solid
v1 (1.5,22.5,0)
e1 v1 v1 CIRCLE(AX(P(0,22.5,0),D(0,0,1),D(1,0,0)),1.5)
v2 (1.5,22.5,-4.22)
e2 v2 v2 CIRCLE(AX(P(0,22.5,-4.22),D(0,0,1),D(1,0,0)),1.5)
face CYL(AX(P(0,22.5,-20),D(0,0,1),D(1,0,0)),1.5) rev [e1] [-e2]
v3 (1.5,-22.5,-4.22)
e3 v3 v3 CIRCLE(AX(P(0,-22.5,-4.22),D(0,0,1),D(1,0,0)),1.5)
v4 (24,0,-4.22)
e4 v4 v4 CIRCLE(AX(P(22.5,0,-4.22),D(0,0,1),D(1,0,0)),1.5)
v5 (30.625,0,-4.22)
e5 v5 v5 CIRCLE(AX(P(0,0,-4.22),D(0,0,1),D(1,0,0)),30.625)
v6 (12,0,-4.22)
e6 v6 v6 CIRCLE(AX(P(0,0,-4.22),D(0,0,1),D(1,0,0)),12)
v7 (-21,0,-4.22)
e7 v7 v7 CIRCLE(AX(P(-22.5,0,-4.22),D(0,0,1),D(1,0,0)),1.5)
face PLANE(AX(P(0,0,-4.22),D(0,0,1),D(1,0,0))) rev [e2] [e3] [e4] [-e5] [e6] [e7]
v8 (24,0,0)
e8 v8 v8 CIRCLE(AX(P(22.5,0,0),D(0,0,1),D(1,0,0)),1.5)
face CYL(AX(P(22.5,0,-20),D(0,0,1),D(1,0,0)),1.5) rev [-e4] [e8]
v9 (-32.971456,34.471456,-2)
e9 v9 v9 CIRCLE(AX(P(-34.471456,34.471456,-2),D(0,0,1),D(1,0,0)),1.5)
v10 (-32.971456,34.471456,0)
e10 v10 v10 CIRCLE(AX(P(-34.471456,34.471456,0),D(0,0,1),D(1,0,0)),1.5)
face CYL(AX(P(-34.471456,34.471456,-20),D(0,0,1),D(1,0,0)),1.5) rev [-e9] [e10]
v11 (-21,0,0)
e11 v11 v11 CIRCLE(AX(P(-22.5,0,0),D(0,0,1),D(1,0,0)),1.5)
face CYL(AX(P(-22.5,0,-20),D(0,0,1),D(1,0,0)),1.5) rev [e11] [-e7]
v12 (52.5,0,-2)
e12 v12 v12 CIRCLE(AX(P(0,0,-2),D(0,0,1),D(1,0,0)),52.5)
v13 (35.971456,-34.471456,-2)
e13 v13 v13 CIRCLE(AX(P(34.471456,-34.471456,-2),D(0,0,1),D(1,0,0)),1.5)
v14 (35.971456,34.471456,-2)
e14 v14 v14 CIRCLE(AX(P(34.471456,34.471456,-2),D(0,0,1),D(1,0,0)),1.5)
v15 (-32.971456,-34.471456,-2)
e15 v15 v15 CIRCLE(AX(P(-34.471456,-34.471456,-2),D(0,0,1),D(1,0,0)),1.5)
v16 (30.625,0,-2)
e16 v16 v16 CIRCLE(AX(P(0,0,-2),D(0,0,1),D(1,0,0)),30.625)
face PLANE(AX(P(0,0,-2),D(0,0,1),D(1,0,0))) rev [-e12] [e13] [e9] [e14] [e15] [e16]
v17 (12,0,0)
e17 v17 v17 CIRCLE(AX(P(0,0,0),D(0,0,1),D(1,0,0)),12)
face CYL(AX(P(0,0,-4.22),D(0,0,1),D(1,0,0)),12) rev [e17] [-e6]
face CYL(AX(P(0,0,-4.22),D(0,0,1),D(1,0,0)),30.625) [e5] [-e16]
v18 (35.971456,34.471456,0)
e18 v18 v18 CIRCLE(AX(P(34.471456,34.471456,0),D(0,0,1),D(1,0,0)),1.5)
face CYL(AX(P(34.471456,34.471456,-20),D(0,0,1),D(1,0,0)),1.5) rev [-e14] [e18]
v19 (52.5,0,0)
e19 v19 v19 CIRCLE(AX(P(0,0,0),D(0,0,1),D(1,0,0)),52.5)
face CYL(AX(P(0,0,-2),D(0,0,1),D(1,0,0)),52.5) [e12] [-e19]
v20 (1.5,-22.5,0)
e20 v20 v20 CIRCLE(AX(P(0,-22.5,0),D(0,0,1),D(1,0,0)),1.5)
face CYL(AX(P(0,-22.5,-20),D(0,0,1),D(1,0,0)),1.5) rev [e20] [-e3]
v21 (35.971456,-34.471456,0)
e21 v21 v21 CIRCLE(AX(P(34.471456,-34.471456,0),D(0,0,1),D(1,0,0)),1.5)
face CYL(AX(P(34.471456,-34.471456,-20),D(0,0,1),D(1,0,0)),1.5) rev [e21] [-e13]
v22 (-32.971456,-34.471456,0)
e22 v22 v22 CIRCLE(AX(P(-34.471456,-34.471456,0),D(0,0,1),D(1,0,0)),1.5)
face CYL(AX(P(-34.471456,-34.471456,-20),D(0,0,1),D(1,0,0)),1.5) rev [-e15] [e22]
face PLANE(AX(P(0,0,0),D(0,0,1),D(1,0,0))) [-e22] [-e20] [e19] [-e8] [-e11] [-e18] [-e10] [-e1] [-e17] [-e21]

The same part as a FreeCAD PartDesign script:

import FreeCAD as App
import Part
import Sketcher
from FreeCAD import Vector
Q = App.Units.Quantity

doc = App.newDocument("Part")
body = doc.addObject("PartDesign::Body", "Body")

# Sketch on XY plane
sketch1 = body.newObject("Sketcher::SketchObject", "Sketch")
sketch1.AttachmentSupport = (doc.getObject("XY_Plane"), [""])
sketch1.MapMode = "FlatFace"
sketch1.addGeometry(Part.Circle(Vector(0, 0, 0), Vector(0, 0, 1), 30.625), False)
sketch1.addGeometry(Part.Circle(Vector(0, 0, 0), Vector(0, 0, 1), 12), False)
sketch1.addConstraint(Sketcher.Constraint("Coincident", 0, 3, -1, 1))
sketch1.addConstraint(Sketcher.Constraint("Coincident", 1, 3, -1, 1))
sketch1.addConstraint(Sketcher.Constraint("Diameter", 1, Q("24 mm")))
sketch1.addConstraint(Sketcher.Constraint("Diameter", 0, Q("61.25 mm")))
pad1 = body.newObject("PartDesign::Pad", "Pad")
pad1.Profile = sketch1
pad1.Length = 4.22
pad1.Reversed = True

# Sketch on XY plane
sketch2 = body.newObject("Sketcher::SketchObject", "Sketch001")
sketch2.AttachmentSupport = (doc.getObject("XY_Plane"), [""])
sketch2.MapMode = "FlatFace"
sketch2.addGeometry(Part.Circle(Vector(0, 0, 0), Vector(0, 0, 1), 52.5), False)
sketch2.addGeometry(Part.Circle(Vector(0, 0, 0), Vector(0, 0, 1), 30.625), False)
sketch2.addConstraint(Sketcher.Constraint("Coincident", 0, 3, -1, 1))
sketch2.addConstraint(Sketcher.Constraint("Coincident", 1, 3, -1, 1))
sketch2.addConstraint(Sketcher.Constraint("Diameter", 0, Q("105 mm")))
sketch2.addConstraint(Sketcher.Constraint("Diameter", 1, Q("61.25 mm")))
pad2 = body.newObject("PartDesign::Pad", "Pad001")
pad2.Profile = sketch2
pad2.Length = 2
pad2.Reversed = True

# Sketch on XY plane
sketch3 = body.newObject("Sketcher::SketchObject", "Sketch002")
sketch3.AttachmentSupport = (doc.getObject("XY_Plane"), [""])
sketch3.MapMode = "FlatFace"
sketch3.addGeometry(Part.Circle(Vector(-34.471456, 34.471456, 0), Vector(0, 0, 1), 1.5), False)
sketch3.addGeometry(Part.Circle(Vector(34.471456, 34.471456, 0), Vector(0, 0, 1), 1.5), False)
sketch3.addGeometry(Part.Circle(Vector(34.471456, -34.471456, 0), Vector(0, 0, 1), 1.5), False)
sketch3.addGeometry(Part.Circle(Vector(-34.471456, -34.471456, 0), Vector(0, 0, 1), 1.5), False)
sketch3.addGeometry(Part.Circle(Vector(0, 22.5, 0), Vector(0, 0, 1), 1.5), False)
sketch3.addGeometry(Part.Circle(Vector(22.5, 0, 0), Vector(0, 0, 1), 1.5), False)
sketch3.addGeometry(Part.Circle(Vector(0, -22.5, 0), Vector(0, 0, 1), 1.5), False)
sketch3.addGeometry(Part.Circle(Vector(-22.5, 0, 0), Vector(0, 0, 1), 1.5), False)
sketch3.addConstraint(Sketcher.Constraint("Equal", 0, 1))
sketch3.addConstraint(Sketcher.Constraint("Equal", 1, 2))
sketch3.addConstraint(Sketcher.Constraint("Equal", 2, 3))
sketch3.addConstraint(Sketcher.Constraint("Equal", 3, 4))
sketch3.addConstraint(Sketcher.Constraint("Equal", 4, 5))
sketch3.addConstraint(Sketcher.Constraint("Equal", 5, 6))
sketch3.addConstraint(Sketcher.Constraint("Equal", 6, 7))
sketch3.addConstraint(Sketcher.Constraint("Symmetric", 0, 3, 2, 3, -1, 1))
sketch3.addConstraint(Sketcher.Constraint("Symmetric", 1, 3, 3, 3, -1, 1))
sketch3.addConstraint(Sketcher.Constraint("Symmetric", 4, 3, 6, 3, -1, 1))
sketch3.addConstraint(Sketcher.Constraint("Symmetric", 5, 3, 7, 3, -1, 1))
sketch3.addConstraint(Sketcher.Constraint("Symmetric", 0, 3, 1, 3, -2))
sketch3.addConstraint(Sketcher.Constraint("PointOnObject", 4, 3, -2))
sketch3.addConstraint(Sketcher.Constraint("PointOnObject", 5, 3, -1))
sketch3.addConstraint(Sketcher.Constraint("Diameter", 0, Q("3 mm")))
sketch3.addConstraint(Sketcher.Constraint("DistanceY", 6, 3, 4, 3, Q("45 mm")))
sketch3.addConstraint(Sketcher.Constraint("DistanceX", 7, 3, 5, 3, Q("45 mm")))
sketch3.addConstraint(Sketcher.Constraint("DistanceX", 0, 3, 1, 3, Q("68.942911 mm")))
sketch3.addConstraint(Sketcher.Constraint("DistanceY", 2, 3, 1, 3, Q("68.942911 mm")))
pocket1 = body.newObject("PartDesign::Pocket", "Pocket")
pocket1.Profile = sketch3
pocket1.Length = 20

doc.recompute()
